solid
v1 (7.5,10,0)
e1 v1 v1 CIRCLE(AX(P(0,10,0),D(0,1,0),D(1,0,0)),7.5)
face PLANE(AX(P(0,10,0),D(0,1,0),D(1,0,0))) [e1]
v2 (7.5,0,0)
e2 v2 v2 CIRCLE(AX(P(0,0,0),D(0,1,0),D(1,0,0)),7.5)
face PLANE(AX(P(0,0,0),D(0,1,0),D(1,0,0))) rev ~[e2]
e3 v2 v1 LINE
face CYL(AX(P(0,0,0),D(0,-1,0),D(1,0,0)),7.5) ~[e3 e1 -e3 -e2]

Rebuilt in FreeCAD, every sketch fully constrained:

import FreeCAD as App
import Part
import Sketcher
from FreeCAD import Vector
Q = App.Units.Quantity

doc = App.newDocument("Part")
params = doc.addObject("Spreadsheet::Sheet", "Params")
for row, (alias, value) in enumerate([
    ("sketch1_diameter", "15 mm"),
    ("pad1_length", "10 mm"),
], start=1):
    params.set(f"A{row}", alias)
    params.set(f"B{row}", "=" + value)
    params.setAlias(f"B{row}", alias)

body = doc.addObject("PartDesign::Body", "Body")

# Sketch on XZ plane
sketch1 = body.newObject("Sketcher::SketchObject", "Sketch")
sketch1.AttachmentSupport = (doc.getObject("XZ_Plane"), [""])
sketch1.MapMode = "FlatFace"
sketch1.addGeometry(Part.Circle(Vector(0, 0, 0), Vector(0, 0, 1), 8), False)
sketch1.addConstraint([
    Sketcher.Constraint("Coincident", 0, 3, -1, 1),
    Sketcher.Constraint("Diameter", 0, Q("15 mm")),
])
sketch1.setExpression("Constraints[1]", "Params.sketch1_diameter")
pad1 = body.newObject("PartDesign::Pad", "Pad")
pad1.Profile = sketch1
pad1.setExpression("Length", "Params.pad1_length")
pad1.Reversed = True

doc.recompute()
